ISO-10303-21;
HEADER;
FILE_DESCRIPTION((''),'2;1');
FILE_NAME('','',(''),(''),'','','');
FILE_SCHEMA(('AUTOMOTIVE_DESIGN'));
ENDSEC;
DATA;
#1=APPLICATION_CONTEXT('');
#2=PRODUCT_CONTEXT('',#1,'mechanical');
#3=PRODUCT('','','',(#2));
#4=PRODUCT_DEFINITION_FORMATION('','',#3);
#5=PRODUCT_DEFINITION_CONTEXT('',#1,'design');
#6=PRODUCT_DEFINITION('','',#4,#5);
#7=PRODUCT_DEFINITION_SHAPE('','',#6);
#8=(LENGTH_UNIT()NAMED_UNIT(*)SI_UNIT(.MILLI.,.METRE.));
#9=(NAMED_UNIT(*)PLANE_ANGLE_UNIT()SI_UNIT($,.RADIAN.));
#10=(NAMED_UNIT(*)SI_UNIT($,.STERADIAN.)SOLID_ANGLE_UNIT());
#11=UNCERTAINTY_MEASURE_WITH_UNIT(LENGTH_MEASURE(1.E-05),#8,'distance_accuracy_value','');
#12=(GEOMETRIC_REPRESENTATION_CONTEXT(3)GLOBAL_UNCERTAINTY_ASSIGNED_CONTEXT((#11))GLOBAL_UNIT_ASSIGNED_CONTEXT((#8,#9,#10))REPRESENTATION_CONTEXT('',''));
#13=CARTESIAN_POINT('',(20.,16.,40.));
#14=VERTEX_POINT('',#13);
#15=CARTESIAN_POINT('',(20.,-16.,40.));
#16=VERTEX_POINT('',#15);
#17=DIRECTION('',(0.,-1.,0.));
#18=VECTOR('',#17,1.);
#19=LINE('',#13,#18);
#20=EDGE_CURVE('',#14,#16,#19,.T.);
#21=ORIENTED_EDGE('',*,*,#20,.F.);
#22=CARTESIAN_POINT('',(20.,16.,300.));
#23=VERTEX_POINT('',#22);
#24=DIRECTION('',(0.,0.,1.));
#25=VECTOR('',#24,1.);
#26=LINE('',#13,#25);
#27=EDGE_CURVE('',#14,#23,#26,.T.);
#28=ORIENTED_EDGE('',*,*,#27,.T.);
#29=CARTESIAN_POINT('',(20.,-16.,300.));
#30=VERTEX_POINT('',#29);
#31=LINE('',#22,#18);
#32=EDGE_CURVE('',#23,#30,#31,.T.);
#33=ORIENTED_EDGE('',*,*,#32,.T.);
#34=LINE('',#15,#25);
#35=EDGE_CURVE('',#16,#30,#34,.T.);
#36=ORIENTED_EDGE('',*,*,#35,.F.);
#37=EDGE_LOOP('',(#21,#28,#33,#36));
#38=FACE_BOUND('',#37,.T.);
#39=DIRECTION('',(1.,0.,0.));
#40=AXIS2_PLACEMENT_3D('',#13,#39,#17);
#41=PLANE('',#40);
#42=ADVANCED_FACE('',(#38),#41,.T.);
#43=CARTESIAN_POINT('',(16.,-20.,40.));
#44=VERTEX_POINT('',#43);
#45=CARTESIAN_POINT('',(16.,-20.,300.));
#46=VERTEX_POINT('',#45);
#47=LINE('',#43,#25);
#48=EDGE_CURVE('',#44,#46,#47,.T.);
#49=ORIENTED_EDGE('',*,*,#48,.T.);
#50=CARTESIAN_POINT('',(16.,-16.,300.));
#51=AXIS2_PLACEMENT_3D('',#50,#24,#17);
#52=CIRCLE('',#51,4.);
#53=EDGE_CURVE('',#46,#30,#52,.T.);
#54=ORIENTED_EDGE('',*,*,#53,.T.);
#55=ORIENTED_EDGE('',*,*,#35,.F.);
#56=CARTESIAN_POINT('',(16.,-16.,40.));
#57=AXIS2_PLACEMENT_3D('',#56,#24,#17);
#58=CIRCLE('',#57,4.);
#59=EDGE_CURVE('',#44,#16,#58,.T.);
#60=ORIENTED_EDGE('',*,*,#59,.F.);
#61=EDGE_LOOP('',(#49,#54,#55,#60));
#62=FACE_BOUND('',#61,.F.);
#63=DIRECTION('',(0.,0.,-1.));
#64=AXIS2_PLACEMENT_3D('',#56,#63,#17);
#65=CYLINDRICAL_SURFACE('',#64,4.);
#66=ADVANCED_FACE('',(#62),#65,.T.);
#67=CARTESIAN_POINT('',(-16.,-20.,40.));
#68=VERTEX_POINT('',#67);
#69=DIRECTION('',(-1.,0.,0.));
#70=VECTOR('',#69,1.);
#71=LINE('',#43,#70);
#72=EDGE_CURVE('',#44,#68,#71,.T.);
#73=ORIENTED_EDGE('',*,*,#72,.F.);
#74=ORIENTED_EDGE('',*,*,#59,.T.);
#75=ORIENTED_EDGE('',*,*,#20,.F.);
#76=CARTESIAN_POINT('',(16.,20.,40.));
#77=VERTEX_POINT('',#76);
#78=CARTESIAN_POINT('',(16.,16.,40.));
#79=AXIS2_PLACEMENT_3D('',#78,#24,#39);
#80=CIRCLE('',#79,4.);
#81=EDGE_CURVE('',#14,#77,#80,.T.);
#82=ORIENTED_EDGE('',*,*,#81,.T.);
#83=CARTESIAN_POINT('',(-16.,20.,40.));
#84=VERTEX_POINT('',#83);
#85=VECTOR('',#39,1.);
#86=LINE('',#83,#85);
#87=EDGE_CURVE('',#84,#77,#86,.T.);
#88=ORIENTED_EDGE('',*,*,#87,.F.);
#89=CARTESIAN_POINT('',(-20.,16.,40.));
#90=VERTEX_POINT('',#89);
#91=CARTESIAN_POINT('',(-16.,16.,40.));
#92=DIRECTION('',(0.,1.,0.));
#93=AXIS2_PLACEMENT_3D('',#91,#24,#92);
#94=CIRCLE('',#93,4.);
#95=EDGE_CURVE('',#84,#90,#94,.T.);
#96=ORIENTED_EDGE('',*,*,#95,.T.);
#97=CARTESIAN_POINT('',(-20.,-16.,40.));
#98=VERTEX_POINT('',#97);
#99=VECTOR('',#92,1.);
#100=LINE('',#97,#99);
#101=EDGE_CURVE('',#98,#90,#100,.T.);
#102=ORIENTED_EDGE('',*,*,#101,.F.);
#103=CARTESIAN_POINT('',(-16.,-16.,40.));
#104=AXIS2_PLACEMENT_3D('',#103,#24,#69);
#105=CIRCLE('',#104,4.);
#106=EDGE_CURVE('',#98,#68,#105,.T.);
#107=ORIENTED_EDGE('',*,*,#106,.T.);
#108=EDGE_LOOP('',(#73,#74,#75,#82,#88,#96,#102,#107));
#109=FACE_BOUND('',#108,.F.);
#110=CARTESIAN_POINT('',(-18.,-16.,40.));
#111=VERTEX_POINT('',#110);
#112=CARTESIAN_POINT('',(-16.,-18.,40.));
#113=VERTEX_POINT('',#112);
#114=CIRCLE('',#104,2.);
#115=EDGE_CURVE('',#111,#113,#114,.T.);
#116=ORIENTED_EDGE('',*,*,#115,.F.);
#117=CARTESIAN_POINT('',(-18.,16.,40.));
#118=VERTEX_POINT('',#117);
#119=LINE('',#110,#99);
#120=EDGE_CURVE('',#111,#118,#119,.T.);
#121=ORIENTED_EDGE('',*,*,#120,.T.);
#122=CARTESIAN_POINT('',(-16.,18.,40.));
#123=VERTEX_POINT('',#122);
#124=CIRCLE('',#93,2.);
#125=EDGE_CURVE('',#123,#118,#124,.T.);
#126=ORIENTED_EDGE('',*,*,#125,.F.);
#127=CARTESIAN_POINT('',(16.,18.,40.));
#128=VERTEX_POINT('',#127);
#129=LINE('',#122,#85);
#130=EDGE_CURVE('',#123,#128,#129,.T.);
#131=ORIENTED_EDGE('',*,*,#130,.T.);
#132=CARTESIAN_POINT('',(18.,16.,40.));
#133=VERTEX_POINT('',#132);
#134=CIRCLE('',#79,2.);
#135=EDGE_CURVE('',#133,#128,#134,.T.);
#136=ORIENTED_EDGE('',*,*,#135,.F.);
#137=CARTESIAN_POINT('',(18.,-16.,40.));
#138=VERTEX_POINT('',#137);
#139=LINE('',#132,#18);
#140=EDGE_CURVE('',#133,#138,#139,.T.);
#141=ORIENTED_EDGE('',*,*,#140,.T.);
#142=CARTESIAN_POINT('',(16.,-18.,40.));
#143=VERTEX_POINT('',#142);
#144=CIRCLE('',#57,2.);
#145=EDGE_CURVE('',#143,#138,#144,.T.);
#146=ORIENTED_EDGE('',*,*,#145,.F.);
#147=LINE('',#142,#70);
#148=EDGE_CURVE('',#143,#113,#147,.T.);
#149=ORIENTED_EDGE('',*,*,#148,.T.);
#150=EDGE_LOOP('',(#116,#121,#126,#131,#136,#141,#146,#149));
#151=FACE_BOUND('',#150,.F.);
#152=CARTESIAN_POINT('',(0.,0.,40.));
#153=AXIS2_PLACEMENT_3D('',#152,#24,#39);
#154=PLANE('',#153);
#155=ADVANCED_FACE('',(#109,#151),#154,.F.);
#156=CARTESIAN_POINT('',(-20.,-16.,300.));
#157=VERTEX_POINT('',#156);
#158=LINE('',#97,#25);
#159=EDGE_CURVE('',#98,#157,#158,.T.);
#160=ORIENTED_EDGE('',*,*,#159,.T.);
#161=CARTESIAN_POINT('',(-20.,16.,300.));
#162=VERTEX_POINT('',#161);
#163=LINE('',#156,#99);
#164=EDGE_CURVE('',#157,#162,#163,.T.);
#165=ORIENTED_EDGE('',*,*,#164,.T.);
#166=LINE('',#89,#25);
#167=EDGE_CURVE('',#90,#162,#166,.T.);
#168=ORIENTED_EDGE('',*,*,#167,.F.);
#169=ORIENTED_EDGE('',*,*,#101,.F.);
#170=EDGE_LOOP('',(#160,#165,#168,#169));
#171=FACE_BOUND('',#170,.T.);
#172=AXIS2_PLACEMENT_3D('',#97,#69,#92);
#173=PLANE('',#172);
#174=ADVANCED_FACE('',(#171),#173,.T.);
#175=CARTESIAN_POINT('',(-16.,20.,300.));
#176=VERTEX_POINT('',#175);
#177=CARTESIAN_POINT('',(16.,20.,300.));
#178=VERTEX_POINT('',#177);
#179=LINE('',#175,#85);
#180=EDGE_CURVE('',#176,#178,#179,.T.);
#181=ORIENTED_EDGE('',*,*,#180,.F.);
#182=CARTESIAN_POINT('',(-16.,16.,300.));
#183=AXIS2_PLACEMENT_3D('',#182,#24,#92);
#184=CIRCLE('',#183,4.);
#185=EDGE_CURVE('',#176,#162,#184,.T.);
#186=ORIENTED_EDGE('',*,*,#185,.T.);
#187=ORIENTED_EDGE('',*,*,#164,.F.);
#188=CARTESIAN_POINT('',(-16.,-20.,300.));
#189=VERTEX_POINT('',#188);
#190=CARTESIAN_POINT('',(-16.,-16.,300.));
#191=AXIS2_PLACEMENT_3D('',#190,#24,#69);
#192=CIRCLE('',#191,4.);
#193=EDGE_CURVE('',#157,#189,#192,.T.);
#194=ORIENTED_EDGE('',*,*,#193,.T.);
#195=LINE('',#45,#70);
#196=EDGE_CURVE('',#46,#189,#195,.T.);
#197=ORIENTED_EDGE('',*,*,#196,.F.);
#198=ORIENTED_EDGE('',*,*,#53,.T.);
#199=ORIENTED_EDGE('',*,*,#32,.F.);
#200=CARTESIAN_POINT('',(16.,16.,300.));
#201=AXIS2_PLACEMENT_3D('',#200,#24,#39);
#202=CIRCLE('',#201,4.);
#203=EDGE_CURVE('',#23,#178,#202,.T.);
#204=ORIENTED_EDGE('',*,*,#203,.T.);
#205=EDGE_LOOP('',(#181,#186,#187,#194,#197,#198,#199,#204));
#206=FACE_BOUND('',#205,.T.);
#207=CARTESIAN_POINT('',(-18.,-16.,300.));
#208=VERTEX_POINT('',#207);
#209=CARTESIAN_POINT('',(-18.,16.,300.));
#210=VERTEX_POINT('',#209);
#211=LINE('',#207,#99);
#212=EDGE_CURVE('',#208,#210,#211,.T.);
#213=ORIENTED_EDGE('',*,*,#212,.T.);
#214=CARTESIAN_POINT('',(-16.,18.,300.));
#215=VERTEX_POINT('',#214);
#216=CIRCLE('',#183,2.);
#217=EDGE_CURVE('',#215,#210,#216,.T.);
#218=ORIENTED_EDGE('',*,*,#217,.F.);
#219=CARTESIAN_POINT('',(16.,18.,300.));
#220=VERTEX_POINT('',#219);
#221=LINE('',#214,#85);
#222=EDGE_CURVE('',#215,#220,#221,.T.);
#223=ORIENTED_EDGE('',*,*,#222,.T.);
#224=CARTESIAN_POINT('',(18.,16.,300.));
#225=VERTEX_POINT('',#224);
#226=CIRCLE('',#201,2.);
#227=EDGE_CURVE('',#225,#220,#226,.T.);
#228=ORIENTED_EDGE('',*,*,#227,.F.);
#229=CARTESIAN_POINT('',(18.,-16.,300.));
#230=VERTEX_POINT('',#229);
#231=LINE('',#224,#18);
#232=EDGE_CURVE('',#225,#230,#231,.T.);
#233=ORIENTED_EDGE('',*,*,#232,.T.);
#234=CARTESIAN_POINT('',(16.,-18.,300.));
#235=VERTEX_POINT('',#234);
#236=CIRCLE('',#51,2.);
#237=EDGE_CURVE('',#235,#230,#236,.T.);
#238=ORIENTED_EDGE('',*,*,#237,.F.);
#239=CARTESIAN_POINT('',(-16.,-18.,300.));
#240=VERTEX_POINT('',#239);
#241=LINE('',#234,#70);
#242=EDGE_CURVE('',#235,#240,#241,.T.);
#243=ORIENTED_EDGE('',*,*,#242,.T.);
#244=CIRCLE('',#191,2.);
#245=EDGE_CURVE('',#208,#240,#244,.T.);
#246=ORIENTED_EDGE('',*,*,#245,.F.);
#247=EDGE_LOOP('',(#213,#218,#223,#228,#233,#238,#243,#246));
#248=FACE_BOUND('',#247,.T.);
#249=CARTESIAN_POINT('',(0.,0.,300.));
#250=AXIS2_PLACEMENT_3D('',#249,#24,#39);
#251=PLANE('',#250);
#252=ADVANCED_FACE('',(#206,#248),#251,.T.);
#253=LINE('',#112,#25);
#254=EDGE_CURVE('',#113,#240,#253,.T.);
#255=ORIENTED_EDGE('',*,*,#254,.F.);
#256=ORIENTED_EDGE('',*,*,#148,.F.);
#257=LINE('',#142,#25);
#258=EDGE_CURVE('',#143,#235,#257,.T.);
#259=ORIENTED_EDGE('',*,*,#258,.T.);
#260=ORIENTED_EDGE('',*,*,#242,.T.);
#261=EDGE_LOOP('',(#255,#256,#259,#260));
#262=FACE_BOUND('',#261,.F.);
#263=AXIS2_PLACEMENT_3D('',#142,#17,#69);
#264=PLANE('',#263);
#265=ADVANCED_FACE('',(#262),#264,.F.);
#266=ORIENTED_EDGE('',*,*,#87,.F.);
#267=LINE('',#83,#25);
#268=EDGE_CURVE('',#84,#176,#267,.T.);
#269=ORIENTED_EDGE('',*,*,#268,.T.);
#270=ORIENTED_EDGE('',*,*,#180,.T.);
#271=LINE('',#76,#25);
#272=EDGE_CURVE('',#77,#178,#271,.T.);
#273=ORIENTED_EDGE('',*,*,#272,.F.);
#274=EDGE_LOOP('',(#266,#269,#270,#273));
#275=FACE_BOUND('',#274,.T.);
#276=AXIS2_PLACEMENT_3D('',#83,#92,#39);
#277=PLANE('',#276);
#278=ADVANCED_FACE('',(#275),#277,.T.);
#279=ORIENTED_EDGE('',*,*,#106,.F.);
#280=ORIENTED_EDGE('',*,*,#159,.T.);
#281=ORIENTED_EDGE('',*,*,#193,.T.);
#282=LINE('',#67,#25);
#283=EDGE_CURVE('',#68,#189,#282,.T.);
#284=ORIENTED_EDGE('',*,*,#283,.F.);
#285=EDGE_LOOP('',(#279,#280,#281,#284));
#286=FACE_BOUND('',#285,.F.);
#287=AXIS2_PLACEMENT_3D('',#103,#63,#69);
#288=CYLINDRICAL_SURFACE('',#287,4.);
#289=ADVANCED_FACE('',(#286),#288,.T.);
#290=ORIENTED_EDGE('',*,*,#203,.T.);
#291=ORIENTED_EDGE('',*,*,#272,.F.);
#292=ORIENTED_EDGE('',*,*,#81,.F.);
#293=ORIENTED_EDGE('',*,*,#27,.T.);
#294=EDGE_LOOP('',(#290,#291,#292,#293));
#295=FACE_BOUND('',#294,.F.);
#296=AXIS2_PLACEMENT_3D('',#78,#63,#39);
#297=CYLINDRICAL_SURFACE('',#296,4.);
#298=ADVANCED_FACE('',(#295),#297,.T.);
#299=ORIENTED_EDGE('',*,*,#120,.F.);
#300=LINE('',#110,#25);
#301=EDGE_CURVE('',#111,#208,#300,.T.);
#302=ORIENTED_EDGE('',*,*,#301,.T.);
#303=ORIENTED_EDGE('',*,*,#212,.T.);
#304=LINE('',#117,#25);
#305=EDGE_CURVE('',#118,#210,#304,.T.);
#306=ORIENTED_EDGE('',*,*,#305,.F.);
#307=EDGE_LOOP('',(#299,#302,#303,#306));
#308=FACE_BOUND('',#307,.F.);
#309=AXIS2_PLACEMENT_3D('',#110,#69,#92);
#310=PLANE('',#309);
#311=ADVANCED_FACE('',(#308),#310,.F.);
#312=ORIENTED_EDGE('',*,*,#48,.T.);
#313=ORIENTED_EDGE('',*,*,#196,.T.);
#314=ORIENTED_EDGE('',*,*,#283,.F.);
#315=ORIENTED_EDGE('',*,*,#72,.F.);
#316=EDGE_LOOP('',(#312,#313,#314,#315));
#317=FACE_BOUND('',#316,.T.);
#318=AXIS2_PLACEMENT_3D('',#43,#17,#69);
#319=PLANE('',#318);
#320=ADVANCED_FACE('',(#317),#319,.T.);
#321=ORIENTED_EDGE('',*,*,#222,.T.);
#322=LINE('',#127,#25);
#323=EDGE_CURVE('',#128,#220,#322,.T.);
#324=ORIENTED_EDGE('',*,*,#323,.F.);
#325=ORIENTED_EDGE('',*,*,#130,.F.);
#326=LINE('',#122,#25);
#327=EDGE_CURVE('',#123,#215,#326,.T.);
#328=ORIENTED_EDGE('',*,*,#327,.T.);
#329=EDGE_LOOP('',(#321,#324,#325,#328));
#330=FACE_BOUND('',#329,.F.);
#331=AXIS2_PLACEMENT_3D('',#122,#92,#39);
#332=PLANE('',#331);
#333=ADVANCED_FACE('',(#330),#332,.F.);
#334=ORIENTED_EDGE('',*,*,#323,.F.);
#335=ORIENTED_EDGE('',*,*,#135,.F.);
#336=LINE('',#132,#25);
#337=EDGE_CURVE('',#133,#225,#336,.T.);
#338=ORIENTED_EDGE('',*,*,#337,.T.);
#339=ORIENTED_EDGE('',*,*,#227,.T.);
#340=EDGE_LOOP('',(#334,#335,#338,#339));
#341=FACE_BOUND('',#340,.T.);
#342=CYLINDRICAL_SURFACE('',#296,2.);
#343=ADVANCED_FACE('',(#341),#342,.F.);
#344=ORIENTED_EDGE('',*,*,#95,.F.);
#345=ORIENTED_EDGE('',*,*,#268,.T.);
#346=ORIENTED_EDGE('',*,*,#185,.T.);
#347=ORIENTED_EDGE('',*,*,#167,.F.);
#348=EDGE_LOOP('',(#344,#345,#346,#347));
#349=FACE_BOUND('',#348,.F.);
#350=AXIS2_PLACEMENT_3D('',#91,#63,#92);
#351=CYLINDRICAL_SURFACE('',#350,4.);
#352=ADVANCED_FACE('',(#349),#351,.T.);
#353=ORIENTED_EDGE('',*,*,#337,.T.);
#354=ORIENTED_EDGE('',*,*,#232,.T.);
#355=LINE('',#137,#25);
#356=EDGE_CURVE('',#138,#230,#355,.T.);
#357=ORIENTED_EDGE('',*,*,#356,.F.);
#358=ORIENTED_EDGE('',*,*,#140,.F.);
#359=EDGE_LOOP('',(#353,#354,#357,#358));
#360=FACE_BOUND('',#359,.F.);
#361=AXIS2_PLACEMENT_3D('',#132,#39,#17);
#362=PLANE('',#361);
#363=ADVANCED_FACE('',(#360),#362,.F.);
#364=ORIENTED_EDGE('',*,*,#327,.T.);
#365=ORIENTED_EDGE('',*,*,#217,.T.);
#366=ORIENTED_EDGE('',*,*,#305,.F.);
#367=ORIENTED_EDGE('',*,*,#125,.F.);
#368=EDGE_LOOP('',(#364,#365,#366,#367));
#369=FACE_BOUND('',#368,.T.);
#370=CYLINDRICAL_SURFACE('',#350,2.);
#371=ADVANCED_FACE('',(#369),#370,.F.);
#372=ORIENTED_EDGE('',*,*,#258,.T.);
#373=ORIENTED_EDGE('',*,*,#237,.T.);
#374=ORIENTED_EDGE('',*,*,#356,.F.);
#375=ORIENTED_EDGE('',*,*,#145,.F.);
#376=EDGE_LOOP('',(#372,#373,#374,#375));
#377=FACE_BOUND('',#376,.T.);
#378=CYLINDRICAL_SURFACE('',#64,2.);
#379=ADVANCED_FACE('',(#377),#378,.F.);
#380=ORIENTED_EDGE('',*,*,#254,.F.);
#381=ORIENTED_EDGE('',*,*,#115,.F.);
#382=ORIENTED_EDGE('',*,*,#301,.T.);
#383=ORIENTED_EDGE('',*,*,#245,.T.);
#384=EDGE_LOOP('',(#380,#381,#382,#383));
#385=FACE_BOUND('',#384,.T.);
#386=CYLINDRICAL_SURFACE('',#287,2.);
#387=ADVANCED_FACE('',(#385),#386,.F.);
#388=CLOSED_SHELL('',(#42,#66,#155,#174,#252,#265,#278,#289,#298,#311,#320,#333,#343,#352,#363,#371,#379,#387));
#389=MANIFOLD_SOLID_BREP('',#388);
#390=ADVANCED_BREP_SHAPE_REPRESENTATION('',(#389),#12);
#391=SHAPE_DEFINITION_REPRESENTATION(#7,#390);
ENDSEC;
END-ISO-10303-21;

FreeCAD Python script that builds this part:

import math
import FreeCAD as App
import Part
import Sketcher
from FreeCAD import Vector
Q = App.Units.Quantity

doc = App.newDocument("Part")
params = doc.addObject("Spreadsheet::Sheet", "Params")
for row, (alias, value) in enumerate([
    ("sketch1_radius", "4 mm"),
    ("sketch1_radius2", "2 mm"),
    ("pad1_length", "260 mm"),
], start=1):
    params.set(f"A{row}", alias)
    params.set(f"B{row}", "=" + value)
    params.setAlias(f"B{row}", alias)

body = doc.addObject("PartDesign::Body", "Body")

sketch1 = doc.addObject("Sketcher::SketchObject", "Sketch")
body.addObject(sketch1)
sketch1.AttachmentSupport = (doc.XY_Plane, [""])
sketch1.MapMode = "FlatFace"
sketch1.AttachmentOffset = App.Placement(Vector(0, 0, 40), App.Rotation())
sketch1.addGeometry(Part.LineSegment(Vector(-20, 16, 0), Vector(-20, -16, 0)), False)
sketch1.addGeometry(Part.ArcOfCircle(Part.Circle(Vector(-16, -16, 0), Vector(0, 0, 1), 4), math.radians(180), math.radians(270)), False)
sketch1.addGeometry(Part.LineSegment(Vector(-16, -20, 0), Vector(16, -20, 0)), False)
sketch1.addGeometry(Part.ArcOfCircle(Part.Circle(Vector(16, -16, 0), Vector(0, 0, 1), 4), math.radians(-90), math.radians(0)), False)
sketch1.addGeometry(Part.LineSegment(Vector(20, -16, 0), Vector(20, 16, 0)), False)
sketch1.addGeometry(Part.ArcOfCircle(Part.Circle(Vector(16, 16, 0), Vector(0, 0, 1), 4), math.radians(0), math.radians(90)), False)
sketch1.addGeometry(Part.LineSegment(Vector(16, 20, 0), Vector(-16, 20, 0)), False)
sketch1.addGeometry(Part.ArcOfCircle(Part.Circle(Vector(-16, 16, 0), Vector(0, 0, 1), 4), math.radians(90), math.radians(180)), False)
sketch1.addGeometry(Part.ArcOfCircle(Part.Circle(Vector(-16, 16, 0), Vector(0, 0, 1), 2), math.radians(90), math.radians(180)), False)
sketch1.addGeometry(Part.LineSegment(Vector(-16, 18, 0), Vector(16, 18, 0)), False)
sketch1.addGeometry(Part.ArcOfCircle(Part.Circle(Vector(16, 16, 0), Vector(0, 0, 1), 2), math.radians(0), math.radians(90)), False)
sketch1.addGeometry(Part.LineSegment(Vector(18, 16, 0), Vector(18, -16, 0)), False)
sketch1.addGeometry(Part.ArcOfCircle(Part.Circle(Vector(16, -16, 0), Vector(0, 0, 1), 2), math.radians(-90), math.radians(0)), False)
sketch1.addGeometry(Part.LineSegment(Vector(16, -18, 0), Vector(-16, -18, 0)), False)
sketch1.addGeometry(Part.ArcOfCircle(Part.Circle(Vector(-16, -16, 0), Vector(0, 0, 1), 2), math.radians(180), math.radians(270)), False)
sketch1.addGeometry(Part.LineSegment(Vector(-18, -16, 0), Vector(-18, 16, 0)), False)
sketch1.addConstraint(Sketcher.Constraint("Tangent", 0, 2, 1, 1))
sketch1.addConstraint(Sketcher.Constraint("Tangent", 1, 2, 2, 1))
sketch1.addConstraint(Sketcher.Constraint("Tangent", 2, 2, 3, 1))
sketch1.addConstraint(Sketcher.Constraint("Tangent", 3, 2, 4, 1))
sketch1.addConstraint(Sketcher.Constraint("Tangent", 4, 2, 5, 1))
sketch1.addConstraint(Sketcher.Constraint("Tangent", 5, 2, 6, 1))
sketch1.addConstraint(Sketcher.Constraint("Tangent", 6, 2, 7, 1))
sketch1.addConstraint(Sketcher.Constraint("Tangent", 7, 2, 0, 1))
sketch1.addConstraint(Sketcher.Constraint("Tangent", 8, 1, 9, 1))
sketch1.addConstraint(Sketcher.Constraint("Tangent", 9, 2, 10, 2))
sketch1.addConstraint(Sketcher.Constraint("Tangent", 10, 1, 11, 1))
sketch1.addConstraint(Sketcher.Constraint("Tangent", 11, 2, 12, 2))
sketch1.addConstraint(Sketcher.Constraint("Tangent", 12, 1, 13, 1))
sketch1.addConstraint(Sketcher.Constraint("Tangent", 13, 2, 14, 2))
sketch1.addConstraint(Sketcher.Constraint("Tangent", 14, 1, 15, 1))
sketch1.addConstraint(Sketcher.Constraint("Tangent", 15, 2, 8, 2))
sketch1.addConstraint(Sketcher.Constraint("Vertical", 0))
sketch1.addConstraint(Sketcher.Constraint("Horizontal", 2))
sketch1.addConstraint(Sketcher.Constraint("Vertical", 4))
sketch1.addConstraint(Sketcher.Constraint("Horizontal", 6))
sketch1.addConstraint(Sketcher.Constraint("Horizontal", 9))
sketch1.addConstraint(Sketcher.Constraint("Vertical", 11))
sketch1.addConstraint(Sketcher.Constraint("Horizontal", 13))
sketch1.addConstraint(Sketcher.Constraint("Vertical", 15))
sketch1.addConstraint(Sketcher.Constraint("Coincident", 8, 3, 7, 3))
sketch1.addConstraint(Sketcher.Constraint("Coincident", 10, 3, 5, 3))
sketch1.addConstraint(Sketcher.Constraint("Coincident", 12, 3, 3, 3))
sketch1.addConstraint(Sketcher.Constraint("Equal", 1, 3))
sketch1.addConstraint(Sketcher.Constraint("Equal", 3, 5))
sketch1.addConstraint(Sketcher.Constraint("Equal", 5, 7))
sketch1.addConstraint(Sketcher.Constraint("Equal", 12, 14))
sketch1.addConstraint(Sketcher.Constraint("Symmetric", 1, 3, 5, 3, -1, 1))
sketch1.addConstraint(Sketcher.Constraint("Equal", 13, 0))
sketch1.addConstraint(Sketcher.Constraint("Radius", 1, Q("4 mm")))
sketch1.addConstraint(Sketcher.Constraint("Radius", 8, Q("2 mm")))
sketch1.addConstraint(Sketcher.Constraint("DistanceX", 0, 2, -1, 1, Q("20 mm")))
sketch1.setExpression("Constraints[33]", "Params.sketch1_radius")
sketch1.setExpression("Constraints[34]", "Params.sketch1_radius2")
pad1 = doc.addObject("PartDesign::Pad", "Pad")
body.addObject(pad1)
pad1.Profile = sketch1
pad1.setExpression("Length", "Params.pad1_length")

doc.recompute()
